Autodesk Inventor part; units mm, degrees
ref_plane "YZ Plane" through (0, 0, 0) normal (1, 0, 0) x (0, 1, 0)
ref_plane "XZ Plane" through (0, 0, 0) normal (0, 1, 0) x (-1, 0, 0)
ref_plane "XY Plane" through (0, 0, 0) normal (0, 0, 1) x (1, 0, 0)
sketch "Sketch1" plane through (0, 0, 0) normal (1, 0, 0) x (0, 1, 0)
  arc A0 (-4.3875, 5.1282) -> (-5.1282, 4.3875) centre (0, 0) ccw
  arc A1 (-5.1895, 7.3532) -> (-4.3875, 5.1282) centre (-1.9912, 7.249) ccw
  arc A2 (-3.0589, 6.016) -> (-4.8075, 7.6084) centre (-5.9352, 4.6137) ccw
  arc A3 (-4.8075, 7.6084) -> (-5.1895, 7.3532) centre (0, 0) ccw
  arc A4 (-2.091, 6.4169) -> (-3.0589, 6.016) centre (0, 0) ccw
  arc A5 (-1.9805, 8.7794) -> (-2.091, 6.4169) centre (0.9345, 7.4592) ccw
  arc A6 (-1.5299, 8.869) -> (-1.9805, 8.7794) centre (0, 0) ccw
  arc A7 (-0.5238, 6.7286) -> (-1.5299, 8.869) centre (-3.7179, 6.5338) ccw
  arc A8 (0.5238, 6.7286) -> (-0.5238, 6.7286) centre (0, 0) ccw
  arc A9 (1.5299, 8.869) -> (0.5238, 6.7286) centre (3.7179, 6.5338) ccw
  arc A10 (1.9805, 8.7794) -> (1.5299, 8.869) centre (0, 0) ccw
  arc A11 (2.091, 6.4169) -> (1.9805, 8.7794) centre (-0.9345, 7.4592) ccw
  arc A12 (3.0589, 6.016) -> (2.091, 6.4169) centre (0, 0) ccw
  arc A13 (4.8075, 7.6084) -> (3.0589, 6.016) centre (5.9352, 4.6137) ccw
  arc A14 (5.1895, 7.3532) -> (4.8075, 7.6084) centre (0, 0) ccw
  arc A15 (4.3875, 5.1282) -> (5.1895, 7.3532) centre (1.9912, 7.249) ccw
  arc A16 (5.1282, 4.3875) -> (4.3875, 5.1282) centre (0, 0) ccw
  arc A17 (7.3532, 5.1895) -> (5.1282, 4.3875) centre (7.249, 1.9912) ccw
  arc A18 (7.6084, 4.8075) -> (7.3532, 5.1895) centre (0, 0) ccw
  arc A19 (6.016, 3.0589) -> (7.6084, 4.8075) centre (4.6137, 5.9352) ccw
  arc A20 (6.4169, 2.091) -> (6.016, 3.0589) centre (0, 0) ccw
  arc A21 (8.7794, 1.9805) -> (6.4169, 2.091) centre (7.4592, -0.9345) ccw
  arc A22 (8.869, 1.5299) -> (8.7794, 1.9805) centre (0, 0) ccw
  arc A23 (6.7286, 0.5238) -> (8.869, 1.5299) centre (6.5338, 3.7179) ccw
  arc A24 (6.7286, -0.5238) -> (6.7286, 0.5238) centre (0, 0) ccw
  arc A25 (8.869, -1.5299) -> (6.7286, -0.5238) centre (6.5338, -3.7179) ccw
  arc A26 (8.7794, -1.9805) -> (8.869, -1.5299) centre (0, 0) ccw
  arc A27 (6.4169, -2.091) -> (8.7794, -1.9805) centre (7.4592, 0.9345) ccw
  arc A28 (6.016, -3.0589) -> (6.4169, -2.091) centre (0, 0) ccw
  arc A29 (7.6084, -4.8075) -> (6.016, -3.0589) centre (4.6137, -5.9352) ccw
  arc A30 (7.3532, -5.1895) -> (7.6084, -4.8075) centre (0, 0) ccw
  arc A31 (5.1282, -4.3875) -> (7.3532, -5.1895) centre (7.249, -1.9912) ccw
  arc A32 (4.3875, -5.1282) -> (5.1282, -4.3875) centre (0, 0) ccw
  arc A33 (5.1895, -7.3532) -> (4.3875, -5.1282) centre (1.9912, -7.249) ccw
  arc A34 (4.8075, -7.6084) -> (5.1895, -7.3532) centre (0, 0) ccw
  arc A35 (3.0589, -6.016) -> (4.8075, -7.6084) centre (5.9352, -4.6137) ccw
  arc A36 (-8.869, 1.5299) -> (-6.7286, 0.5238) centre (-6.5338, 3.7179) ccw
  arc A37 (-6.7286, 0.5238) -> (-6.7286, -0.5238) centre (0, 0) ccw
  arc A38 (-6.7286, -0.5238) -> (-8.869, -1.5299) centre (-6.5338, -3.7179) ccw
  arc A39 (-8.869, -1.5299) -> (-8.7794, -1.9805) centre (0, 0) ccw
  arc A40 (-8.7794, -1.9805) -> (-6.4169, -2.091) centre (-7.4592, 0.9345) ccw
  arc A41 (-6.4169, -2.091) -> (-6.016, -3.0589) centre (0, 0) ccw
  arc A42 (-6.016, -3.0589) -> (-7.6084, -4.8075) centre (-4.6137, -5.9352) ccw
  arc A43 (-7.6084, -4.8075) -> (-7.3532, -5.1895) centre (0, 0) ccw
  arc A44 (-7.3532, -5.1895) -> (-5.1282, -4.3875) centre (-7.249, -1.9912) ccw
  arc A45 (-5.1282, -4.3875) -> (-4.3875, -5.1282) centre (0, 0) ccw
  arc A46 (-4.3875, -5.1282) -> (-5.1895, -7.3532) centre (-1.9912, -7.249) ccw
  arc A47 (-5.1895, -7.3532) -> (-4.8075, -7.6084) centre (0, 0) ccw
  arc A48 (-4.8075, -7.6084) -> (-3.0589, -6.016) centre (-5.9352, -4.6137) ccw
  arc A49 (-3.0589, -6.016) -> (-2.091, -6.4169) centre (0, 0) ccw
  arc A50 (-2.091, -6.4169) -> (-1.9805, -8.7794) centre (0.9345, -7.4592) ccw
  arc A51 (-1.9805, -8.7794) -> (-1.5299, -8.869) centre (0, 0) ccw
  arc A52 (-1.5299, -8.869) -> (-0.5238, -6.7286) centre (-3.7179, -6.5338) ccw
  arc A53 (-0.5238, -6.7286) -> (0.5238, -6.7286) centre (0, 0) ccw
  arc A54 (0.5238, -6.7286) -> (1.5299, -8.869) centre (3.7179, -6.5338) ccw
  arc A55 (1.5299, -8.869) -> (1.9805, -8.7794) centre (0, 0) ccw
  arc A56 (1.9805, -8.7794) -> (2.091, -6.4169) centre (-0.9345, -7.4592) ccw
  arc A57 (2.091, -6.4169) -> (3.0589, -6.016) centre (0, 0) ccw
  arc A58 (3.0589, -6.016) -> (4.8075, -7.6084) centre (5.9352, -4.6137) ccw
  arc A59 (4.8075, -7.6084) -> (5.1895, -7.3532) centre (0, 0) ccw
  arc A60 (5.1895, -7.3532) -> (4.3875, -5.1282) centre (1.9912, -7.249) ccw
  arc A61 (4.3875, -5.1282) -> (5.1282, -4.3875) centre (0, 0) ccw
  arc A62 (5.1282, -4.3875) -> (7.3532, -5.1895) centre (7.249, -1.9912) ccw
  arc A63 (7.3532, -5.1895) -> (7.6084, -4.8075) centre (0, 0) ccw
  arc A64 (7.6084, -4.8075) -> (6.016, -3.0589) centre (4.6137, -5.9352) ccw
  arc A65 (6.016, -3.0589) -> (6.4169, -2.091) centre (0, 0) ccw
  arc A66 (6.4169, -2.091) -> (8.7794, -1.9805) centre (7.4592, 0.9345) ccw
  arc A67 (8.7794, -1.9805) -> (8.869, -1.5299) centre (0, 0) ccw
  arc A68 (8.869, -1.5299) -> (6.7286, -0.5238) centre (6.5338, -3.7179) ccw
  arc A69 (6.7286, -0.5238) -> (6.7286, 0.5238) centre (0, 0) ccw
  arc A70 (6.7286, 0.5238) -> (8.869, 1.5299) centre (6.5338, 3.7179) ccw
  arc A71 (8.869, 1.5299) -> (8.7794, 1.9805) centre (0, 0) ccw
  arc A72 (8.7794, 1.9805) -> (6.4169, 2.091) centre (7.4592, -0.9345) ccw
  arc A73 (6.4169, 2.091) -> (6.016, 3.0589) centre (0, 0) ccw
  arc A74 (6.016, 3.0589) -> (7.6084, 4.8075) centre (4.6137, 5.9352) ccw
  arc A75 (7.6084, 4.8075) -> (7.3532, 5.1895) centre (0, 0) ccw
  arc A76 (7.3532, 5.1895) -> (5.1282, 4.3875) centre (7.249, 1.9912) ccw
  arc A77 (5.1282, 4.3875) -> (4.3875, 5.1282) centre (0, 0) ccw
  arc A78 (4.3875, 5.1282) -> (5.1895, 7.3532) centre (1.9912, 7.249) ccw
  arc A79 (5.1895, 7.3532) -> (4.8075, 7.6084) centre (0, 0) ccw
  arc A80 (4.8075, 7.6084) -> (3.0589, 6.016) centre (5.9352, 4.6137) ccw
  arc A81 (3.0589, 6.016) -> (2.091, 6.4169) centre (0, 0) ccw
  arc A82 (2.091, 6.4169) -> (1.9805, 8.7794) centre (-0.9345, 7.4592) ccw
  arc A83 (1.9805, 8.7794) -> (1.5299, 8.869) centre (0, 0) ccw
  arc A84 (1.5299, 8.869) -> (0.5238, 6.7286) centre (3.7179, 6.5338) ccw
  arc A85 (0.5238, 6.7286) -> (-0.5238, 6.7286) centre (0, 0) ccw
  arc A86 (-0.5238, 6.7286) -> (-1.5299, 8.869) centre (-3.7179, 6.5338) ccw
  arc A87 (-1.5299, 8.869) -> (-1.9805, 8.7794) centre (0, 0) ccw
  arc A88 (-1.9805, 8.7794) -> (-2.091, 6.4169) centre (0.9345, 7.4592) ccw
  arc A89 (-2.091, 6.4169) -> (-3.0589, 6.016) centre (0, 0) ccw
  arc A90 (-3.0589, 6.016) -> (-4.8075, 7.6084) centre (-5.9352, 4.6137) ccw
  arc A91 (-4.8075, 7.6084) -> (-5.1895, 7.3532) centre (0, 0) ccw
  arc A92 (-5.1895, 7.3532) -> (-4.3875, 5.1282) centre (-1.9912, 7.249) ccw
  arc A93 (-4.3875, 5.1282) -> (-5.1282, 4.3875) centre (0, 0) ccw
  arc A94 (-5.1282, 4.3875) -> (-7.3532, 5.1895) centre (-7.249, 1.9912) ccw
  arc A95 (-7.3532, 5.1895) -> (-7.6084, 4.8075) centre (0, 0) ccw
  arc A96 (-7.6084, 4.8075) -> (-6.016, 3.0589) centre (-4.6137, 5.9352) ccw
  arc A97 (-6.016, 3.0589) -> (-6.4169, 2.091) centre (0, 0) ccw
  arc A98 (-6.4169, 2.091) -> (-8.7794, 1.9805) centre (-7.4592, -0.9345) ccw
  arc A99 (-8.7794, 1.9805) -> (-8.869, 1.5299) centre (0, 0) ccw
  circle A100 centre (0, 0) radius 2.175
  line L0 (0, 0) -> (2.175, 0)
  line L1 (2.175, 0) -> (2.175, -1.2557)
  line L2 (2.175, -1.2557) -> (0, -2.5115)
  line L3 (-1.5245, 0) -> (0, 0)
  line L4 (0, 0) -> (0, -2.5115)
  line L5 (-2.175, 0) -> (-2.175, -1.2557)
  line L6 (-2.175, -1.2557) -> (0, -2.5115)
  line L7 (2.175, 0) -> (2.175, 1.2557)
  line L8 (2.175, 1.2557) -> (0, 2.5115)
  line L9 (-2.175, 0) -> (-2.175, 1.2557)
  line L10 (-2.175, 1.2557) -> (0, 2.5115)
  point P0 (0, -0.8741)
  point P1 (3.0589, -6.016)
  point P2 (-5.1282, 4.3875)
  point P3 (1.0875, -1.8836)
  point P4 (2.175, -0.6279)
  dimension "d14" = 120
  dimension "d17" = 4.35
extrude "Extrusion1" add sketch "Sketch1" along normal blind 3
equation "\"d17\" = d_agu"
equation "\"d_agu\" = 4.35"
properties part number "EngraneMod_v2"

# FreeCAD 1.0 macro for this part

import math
import FreeCAD as App
import Part
import Sketcher

V = App.Vector
Q = App.Units.Quantity


def add_polygon(sketch, points):
    """Adds a closed chain of lines whose ends are joined by coincident constraints."""
    first, n = sketch.GeometryCount, len(points)
    for a, b in zip(points, points[1:] + points[:1]):
        sketch.addGeometry(Part.LineSegment(App.Vector(*a, 0), App.Vector(*b, 0)), False)
    for i in range(n):
        sketch.addConstraint(Sketcher.Constraint("Coincident", first + i, 2, first + (i + 1) % n, 1))

doc = App.newDocument("Part")
body = doc.addObject("PartDesign::Body", "Body")

sketch1 = doc.addObject("Sketcher::SketchObject", "Sketch")
body.addObject(sketch1)
sketch1.AttachmentSupport = (doc.YZ_Plane, [""])
sketch1.MapMode = "FlatFace"
sketch1.addGeometry(Part.ArcOfCircle(Part.Circle(V(-1.9912, 7.249, 0), V(0, 0, 1), 3.199997), math.radians(178.133975), math.radians(221.509827)), False)
sketch1.addGeometry(Part.ArcOfCircle(Part.Circle(V(0, 0, 0), V(0, 0, 1), 6.74897), math.radians(130.549084), math.radians(139.450916)), False)
sketch1.addGeometry(Part.ArcOfCircle(Part.Circle(V(-7.249, 1.9912, 0), V(0, 0, 1), 3.200007), math.radians(48.490173), math.radians(91.866025)), False)
sketch1.addGeometry(Part.ArcOfCircle(Part.Circle(V(-0.04567, 0.031366, 0), V(0, 0, 1), 8.944627), math.radians(144.783048), math.radians(147.726127)), False)
sketch1.addGeometry(Part.ArcOfCircle(Part.Circle(V(-4.6137, 5.9352, 0), V(0, 0, 1), 3.19999), math.radians(-159.365369), math.radians(-115.990903)), False)
sketch1.addGeometry(Part.ArcOfCircle(Part.Circle(V(-0.002662, 0.001226, 0), V(0, 0, 1), 6.746081), math.radians(153.047483), math.radians(161.954266)), False)
sketch1.addGeometry(Part.ArcOfCircle(Part.Circle(V(-7.4592, -0.9345, 0), V(0, 0, 1), 3.200006), math.radians(70.990912), math.radians(114.365715)), False)
sketch1.addGeometry(Part.ArcOfCircle(Part.Circle(V(-0.040652, 0.008627, 0), V(0, 0, 1), 8.95846), math.radians(167.284331), math.radians(170.222986)), False)
sketch1.addGeometry(Part.ArcOfCircle(Part.Circle(V(-6.5338, 3.7179, 0), V(0, 0, 1), 3.200079), math.radians(-136.863938), math.radians(-93.490001)), False)
sketch1.addGeometry(Part.ArcOfCircle(Part.Circle(V(0, 0, 0), V(0, 0, 1), 6.748957), math.radians(175.548684), math.radians(184.451316)), False)
sketch1.addGeometry(Part.ArcOfCircle(Part.Circle(V(-6.5338, -3.7179, 0), V(0, 0, 1), 3.200035), math.radians(93.490001), math.radians(136.863938)), False)
sketch1.addGeometry(Part.ArcOfCircle(Part.Circle(V(0.04124, 0.007657, 0), V(0, 0, 1), 9.041927), math.radians(-170.20942), math.radians(-167.297898)), False)
sketch1.addGeometry(Part.ArcOfCircle(Part.Circle(V(-7.4592, 0.9345, 0), V(0, 0, 1), 3.200024), math.radians(-114.365715), math.radians(-70.990912)), False)
sketch1.addGeometry(Part.ArcOfCircle(Part.Circle(V(0.002752, 0.001016, 0), V(0, 0, 1), 6.751923), math.radians(-161.950405), math.radians(-153.051344)), False)
sketch1.addGeometry(Part.ArcOfCircle(Part.Circle(V(-4.6137, -5.9352, 0), V(0, 0, 1), 3.199929), math.radians(115.990903), math.radians(159.365369)), False)
sketch1.addGeometry(Part.ArcOfCircle(Part.Circle(V(0.047034, 0.030566, 0), V(0, 0, 1), 9.056078), math.radians(-147.708013), math.radians(-144.801162)), False)
sketch1.addGeometry(Part.ArcOfCircle(Part.Circle(V(-7.249, -1.9912, 0), V(0, 0, 1), 3.199997), math.radians(-91.866025), math.radians(-48.490173)), False)
sketch1.addGeometry(Part.ArcOfCircle(Part.Circle(V(0, 0, 0), V(0, 0, 1), 6.74897), math.radians(-139.450916), math.radians(-130.549084)), False)
sketch1.addGeometry(Part.ArcOfCircle(Part.Circle(V(-1.9912, -7.249, 0), V(0, 0, 1), 3.200007), math.radians(138.490173), math.radians(181.866025)), False)
sketch1.addGeometry(Part.ArcOfCircle(Part.Circle(V(-0.031366, -0.04567, 0), V(0, 0, 1), 8.944627), math.radians(-125.216952), math.radians(-122.273873)), False)
sketch1.addGeometry(Part.ArcOfCircle(Part.Circle(V(-5.9352, -4.6137, 0), V(0, 0, 1), 3.19999), math.radians(-69.365369), math.radians(-25.990903)), False)
sketch1.addGeometry(Part.ArcOfCircle(Part.Circle(V(-0.001226, -0.002662, 0), V(0, 0, 1), 6.746081), math.radians(-116.952517), math.radians(-108.045734)), False)
sketch1.addGeometry(Part.ArcOfCircle(Part.Circle(V(0.9345, -7.4592, 0), V(0, 0, 1), 3.200006), math.radians(160.990912), math.radians(204.365715)), False)
sketch1.addGeometry(Part.ArcOfCircle(Part.Circle(V(-0.008627, -0.040652, 0), V(0, 0, 1), 8.95846), math.radians(-102.715669), math.radians(-99.777014)), False)
sketch1.addGeometry(Part.ArcOfCircle(Part.Circle(V(-3.7179, -6.5338, 0), V(0, 0, 1), 3.200079), math.radians(-46.863938), math.radians(-3.490001)), False)
sketch1.addGeometry(Part.ArcOfCircle(Part.Circle(V(0, 0, 0), V(0, 0, 1), 6.748957), math.radians(-94.451316), math.radians(-85.548684)), False)
sketch1.addGeometry(Part.ArcOfCircle(Part.Circle(V(3.7179, -6.5338, 0), V(0, 0, 1), 3.200035), math.radians(-176.509999), math.radians(-133.136062)), False)
sketch1.addGeometry(Part.ArcOfCircle(Part.Circle(V(-0.007657, 0.04124, 0), V(0, 0, 1), 9.041927), math.radians(-80.20942), math.radians(-77.297898)), False)
sketch1.addGeometry(Part.ArcOfCircle(Part.Circle(V(-0.9345, -7.4592, 0), V(0, 0, 1), 3.200024), math.radians(-24.365715), math.radians(19.009088)), False)
sketch1.addGeometry(Part.ArcOfCircle(Part.Circle(V(-0.001016, 0.002752, 0), V(0, 0, 1), 6.751923), math.radians(-71.950405), math.radians(-63.051344)), False)
sketch1.addGeometry(Part.ArcOfCircle(Part.Circle(V(5.9352, -4.6137, 0), V(0, 0, 1), 3.199929), math.radians(-154.009097), math.radians(-110.634631)), False)
sketch1.addGeometry(Part.ArcOfCircle(Part.Circle(V(-0.030566, 0.047034, 0), V(0, 0, 1), 9.056078), math.radians(-57.708013), math.radians(-54.801162)), False)
sketch1.addGeometry(Part.ArcOfCircle(Part.Circle(V(1.9912, -7.249, 0), V(0, 0, 1), 3.199997), math.radians(-1.866025), math.radians(41.509827)), False)
sketch1.addGeometry(Part.ArcOfCircle(Part.Circle(V(0, 0, 0), V(0, 0, 1), 6.74897), math.radians(-49.450916), math.radians(-40.549084)), False)
sketch1.addGeometry(Part.ArcOfCircle(Part.Circle(V(7.249, -1.9912, 0), V(0, 0, 1), 3.200007), math.radians(-131.509827), math.radians(-88.133975)), False)
sketch1.addGeometry(Part.ArcOfCircle(Part.Circle(V(0.04567, -0.031366, 0), V(0, 0, 1), 8.944627), math.radians(-35.216952), math.radians(-32.273873)), False)
sketch1.addGeometry(Part.ArcOfCircle(Part.Circle(V(4.6137, -5.9352, 0), V(0, 0, 1), 3.19999), math.radians(20.634631), math.radians(64.009097)), False)
sketch1.addGeometry(Part.ArcOfCircle(Part.Circle(V(0.002662, -0.001226, 0), V(0, 0, 1), 6.746081), math.radians(-26.952517), math.radians(-18.045734)), False)
sketch1.addGeometry(Part.ArcOfCircle(Part.Circle(V(7.4592, 0.9345, 0), V(0, 0, 1), 3.200006), math.radians(-109.009088), math.radians(-65.634285)), False)
sketch1.addGeometry(Part.ArcOfCircle(Part.Circle(V(0.040652, -0.008627, 0), V(0, 0, 1), 8.95846), math.radians(-12.715669), math.radians(-9.777014)), False)
sketch1.addGeometry(Part.ArcOfCircle(Part.Circle(V(6.5338, -3.7179, 0), V(0, 0, 1), 3.200079), math.radians(43.136062), math.radians(86.509999)), False)
sketch1.addGeometry(Part.ArcOfCircle(Part.Circle(V(0, 0, 0), V(0, 0, 1), 6.748957), math.radians(-4.451316), math.radians(4.451316)), False)
sketch1.addGeometry(Part.ArcOfCircle(Part.Circle(V(6.5338, 3.7179, 0), V(0, 0, 1), 3.200035), math.radians(-86.509999), math.radians(-43.136062)), False)
sketch1.addGeometry(Part.ArcOfCircle(Part.Circle(V(-0.04124, -0.007657, 0), V(0, 0, 1), 9.041927), math.radians(9.79058), math.radians(12.702102)), False)
sketch1.addGeometry(Part.ArcOfCircle(Part.Circle(V(7.4592, -0.9345, 0), V(0, 0, 1), 3.200024), math.radians(65.634285), math.radians(109.009088)), False)
sketch1.addGeometry(Part.ArcOfCircle(Part.Circle(V(-0.002752, -0.001016, 0), V(0, 0, 1), 6.751923), math.radians(18.049595), math.radians(26.948656)), False)
sketch1.addGeometry(Part.ArcOfCircle(Part.Circle(V(4.6137, 5.9352, 0), V(0, 0, 1), 3.199929), math.radians(-64.009097), math.radians(-20.634631)), False)
sketch1.addGeometry(Part.ArcOfCircle(Part.Circle(V(-0.047034, -0.030566, 0), V(0, 0, 1), 9.056078), math.radians(32.291987), math.radians(35.198838)), False)
sketch1.addGeometry(Part.ArcOfCircle(Part.Circle(V(7.249, 1.9912, 0), V(0, 0, 1), 3.199997), math.radians(88.133975), math.radians(131.509827)), False)
sketch1.addGeometry(Part.ArcOfCircle(Part.Circle(V(0, 0, 0), V(0, 0, 1), 6.74897), math.radians(40.549084), math.radians(49.450916)), False)
sketch1.addGeometry(Part.ArcOfCircle(Part.Circle(V(1.9912, 7.249, 0), V(0, 0, 1), 3.200007), math.radians(-41.509827), math.radians(1.866025)), False)
sketch1.addGeometry(Part.ArcOfCircle(Part.Circle(V(0.031366, 0.04567, 0), V(0, 0, 1), 8.944627), math.radians(54.783048), math.radians(57.726127)), False)
sketch1.addGeometry(Part.ArcOfCircle(Part.Circle(V(5.9352, 4.6137, 0), V(0, 0, 1), 3.19999), math.radians(110.634631), math.radians(154.009097)), False)
sketch1.addGeometry(Part.ArcOfCircle(Part.Circle(V(0.001226, 0.002662, 0), V(0, 0, 1), 6.746081), math.radians(63.047483), math.radians(71.954266)), False)
sketch1.addGeometry(Part.ArcOfCircle(Part.Circle(V(-0.9345, 7.4592, 0), V(0, 0, 1), 3.200006), math.radians(-19.009088), math.radians(24.365715)), False)
sketch1.addGeometry(Part.ArcOfCircle(Part.Circle(V(0.008627, 0.040652, 0), V(0, 0, 1), 8.95846), math.radians(77.284331), math.radians(80.222986)), False)
sketch1.addGeometry(Part.ArcOfCircle(Part.Circle(V(3.7179, 6.5338, 0), V(0, 0, 1), 3.200079), math.radians(133.136062), math.radians(176.509999)), False)
sketch1.addGeometry(Part.ArcOfCircle(Part.Circle(V(0, 0, 0), V(0, 0, 1), 6.748957), math.radians(85.548684), math.radians(94.451316)), False)
sketch1.addGeometry(Part.ArcOfCircle(Part.Circle(V(-3.7179, 6.5338, 0), V(0, 0, 1), 3.200035), math.radians(3.490001), math.radians(46.863938)), False)
sketch1.addGeometry(Part.ArcOfCircle(Part.Circle(V(0.007657, -0.04124, 0), V(0, 0, 1), 9.041927), math.radians(99.79058), math.radians(102.702102)), False)
sketch1.addGeometry(Part.ArcOfCircle(Part.Circle(V(0.9345, 7.4592, 0), V(0, 0, 1), 3.200024), math.radians(155.634285), math.radians(199.009088)), False)
sketch1.addGeometry(Part.ArcOfCircle(Part.Circle(V(0.001016, -0.002752, 0), V(0, 0, 1), 6.751923), math.radians(108.049595), math.radians(116.948656)), False)
sketch1.addGeometry(Part.ArcOfCircle(Part.Circle(V(-5.9352, 4.6137, 0), V(0, 0, 1), 3.199929), math.radians(25.990903), math.radians(69.365369)), False)
sketch1.addGeometry(Part.ArcOfCircle(Part.Circle(V(0.030566, -0.047034, 0), V(0, 0, 1), 9.056078), math.radians(122.291987), math.radians(125.198838)), False)
add_polygon(sketch1, [(2.175, 1.2557), (2.175, -1.2557), (0, -2.5115), (-2.175, -1.2557), (-2.175, 1.2557), (0, 2.5115)])
sketch1.addConstraint([
    Sketcher.Constraint("Coincident", 0, 2, 1, 1),
    Sketcher.Constraint("Coincident", 1, 2, 2, 1),
    Sketcher.Constraint("Coincident", 2, 2, 3, 1),
    Sketcher.Constraint("Coincident", 3, 2, 4, 1),
    Sketcher.Constraint("Coincident", 4, 2, 5, 1),
    Sketcher.Constraint("Coincident", 5, 2, 6, 1),
    Sketcher.Constraint("Coincident", 6, 2, 7, 1),
    Sketcher.Constraint("Coincident", 7, 2, 8, 1),
    Sketcher.Constraint("Coincident", 8, 2, 9, 1),
    Sketcher.Constraint("Coincident", 9, 2, 10, 1),
    Sketcher.Constraint("Coincident", 10, 2, 11, 1),
    Sketcher.Constraint("Coincident", 11, 2, 12, 1),
    Sketcher.Constraint("Coincident", 12, 2, 13, 1),
    Sketcher.Constraint("Coincident", 13, 2, 14, 1),
    Sketcher.Constraint("Coincident", 14, 2, 15, 1),
    Sketcher.Constraint("Coincident", 15, 2, 16, 1),
    Sketcher.Constraint("Coincident", 16, 2, 17, 1),
    Sketcher.Constraint("Coincident", 17, 2, 18, 1),
    Sketcher.Constraint("Coincident", 18, 2, 19, 1),
    Sketcher.Constraint("Coincident", 19, 2, 20, 1),
    Sketcher.Constraint("Coincident", 20, 2, 21, 1),
    Sketcher.Constraint("Coincident", 21, 2, 22, 1),
    Sketcher.Constraint("Coincident", 22, 2, 23, 1),
    Sketcher.Constraint("Coincident", 23, 2, 24, 1),
    Sketcher.Constraint("Coincident", 24, 2, 25, 1),
    Sketcher.Constraint("Coincident", 25, 2, 26, 1),
    Sketcher.Constraint("Coincident", 26, 2, 27, 1),
    Sketcher.Constraint("Coincident", 27, 2, 28, 1),
    Sketcher.Constraint("Coincident", 28, 2, 29, 1),
    Sketcher.Constraint("Coincident", 29, 2, 30, 1),
    Sketcher.Constraint("Coincident", 30, 2, 31, 1),
    Sketcher.Constraint("Coincident", 31, 2, 32, 1),
    Sketcher.Constraint("Coincident", 32, 2, 33, 1),
    Sketcher.Constraint("Coincident", 33, 2, 34, 1),
    Sketcher.Constraint("Coincident", 34, 2, 35, 1),
    Sketcher.Constraint("Coincident", 35, 2, 36, 1),
    Sketcher.Constraint("Coincident", 36, 2, 37, 1),
    Sketcher.Constraint("Coincident", 37, 2, 38, 1),
    Sketcher.Constraint("Coincident", 38, 2, 39, 1),
    Sketcher.Constraint("Coincident", 39, 2, 40, 1),
    Sketcher.Constraint("Coincident", 40, 2, 41, 1),
    Sketcher.Constraint("Coincident", 41, 2, 42, 1),
    Sketcher.Constraint("Coincident", 42, 2, 43, 1),
    Sketcher.Constraint("Coincident", 43, 2, 44, 1),
    Sketcher.Constraint("Coincident", 44, 2, 45, 1),
    Sketcher.Constraint("Coincident", 45, 2, 46, 1),
    Sketcher.Constraint("Coincident", 46, 2, 47, 1),
    Sketcher.Constraint("Coincident", 47, 2, 48, 1),
    Sketcher.Constraint("Coincident", 48, 2, 49, 1),
    Sketcher.Constraint("Coincident", 49, 2, 50, 1),
    Sketcher.Constraint("Coincident", 50, 2, 51, 1),
    Sketcher.Constraint("Coincident", 51, 2, 52, 1),
    Sketcher.Constraint("Coincident", 52, 2, 53, 1),
    Sketcher.Constraint("Coincident", 53, 2, 54, 1),
    Sketcher.Constraint("Coincident", 54, 2, 55, 1),
    Sketcher.Constraint("Coincident", 55, 2, 56, 1),
    Sketcher.Constraint("Coincident", 56, 2, 57, 1),
    Sketcher.Constraint("Coincident", 57, 2, 58, 1),
    Sketcher.Constraint("Coincident", 58, 2, 59, 1),
    Sketcher.Constraint("Coincident", 59, 2, 60, 1),
    Sketcher.Constraint("Coincident", 60, 2, 61, 1),
    Sketcher.Constraint("Coincident", 61, 2, 62, 1),
    Sketcher.Constraint("Coincident", 62, 2, 63, 1),
    Sketcher.Constraint("Coincident", 63, 2, 0, 1),
    Sketcher.Constraint("Vertical", 64),
    Sketcher.Constraint("Vertical", 67),
    Sketcher.Constraint("Coincident", 1, 3, -1, 1),
    Sketcher.Constraint("Coincident", 9, 3, -1, 1),
    Sketcher.Constraint("Coincident", 17, 3, -1, 1),
    Sketcher.Constraint("Coincident", 25, 3, -1, 1),
    Sketcher.Constraint("Coincident", 33, 3, -1, 1),
    Sketcher.Constraint("Coincident", 41, 3, -1, 1),
    Sketcher.Constraint("Coincident", 49, 3, -1, 1),
    Sketcher.Constraint("Coincident", 57, 3, -1, 1),
    Sketcher.Constraint("PointOnObject", 65, 2, -2),
    Sketcher.Constraint("PointOnObject", 68, 2, -2),
    Sketcher.Constraint("Radius", 0, Q("3.2 mm")),
    Sketcher.Constraint("Radius", 2, Q("3.2 mm")),
    Sketcher.Constraint("Radius", 4, Q("3.2 mm")),
    Sketcher.Constraint("Radius", 6, Q("3.2 mm")),
    Sketcher.Constraint("Radius", 8, Q("3.2 mm")),
    Sketcher.Constraint("Radius", 10, Q("3.2 mm")),
    Sketcher.Constraint("Radius", 12, Q("3.2 mm")),
    Sketcher.Constraint("Radius", 14, Q("3.2 mm")),
    Sketcher.Constraint("Radius", 16, Q("3.2 mm")),
    Sketcher.Constraint("Radius", 18, Q("3.2 mm")),
    Sketcher.Constraint("Radius", 20, Q("3.2 mm")),
    Sketcher.Constraint("Radius", 22, Q("3.2 mm")),
    Sketcher.Constraint("Radius", 24, Q("3.2 mm")),
    Sketcher.Constraint("Radius", 26, Q("3.2 mm")),
    Sketcher.Constraint("Radius", 28, Q("3.2 mm")),
    Sketcher.Constraint("Radius", 30, Q("3.2 mm")),
    Sketcher.Constraint("Radius", 32, Q("3.2 mm")),
    Sketcher.Constraint("Radius", 34, Q("3.2 mm")),
    Sketcher.Constraint("Radius", 36, Q("3.2 mm")),
    Sketcher.Constraint("Radius", 38, Q("3.2 mm")),
    Sketcher.Constraint("Radius", 40, Q("3.2 mm")),
    Sketcher.Constraint("Radius", 42, Q("3.2 mm")),
    Sketcher.Constraint("Radius", 44, Q("3.2 mm")),
    Sketcher.Constraint("Radius", 46, Q("3.2 mm")),
    Sketcher.Constraint("Radius", 48, Q("3.2 mm")),
    Sketcher.Constraint("Radius", 50, Q("3.2 mm")),
    Sketcher.Constraint("Radius", 52, Q("3.2 mm")),
    Sketcher.Constraint("Radius", 54, Q("3.2 mm")),
    Sketcher.Constraint("Radius", 56, Q("3.2 mm")),
    Sketcher.Constraint("Radius", 58, Q("3.2 mm")),
    Sketcher.Constraint("Radius", 60, Q("3.2 mm")),
    Sketcher.Constraint("Radius", 62, Q("3.2 mm")),
    Sketcher.Constraint("Radius", 1, Q("6.749 mm")),
    Sketcher.Constraint("Radius", 5, Q("6.746 mm")),
    Sketcher.Constraint("Radius", 9, Q("6.749 mm")),
    Sketcher.Constraint("Radius", 11, Q("9.042 mm")),
    Sketcher.Constraint("Radius", 13, Q("6.752 mm")),
    Sketcher.Constraint("Radius", 15, Q("9.056 mm")),
    Sketcher.Constraint("Radius", 17, Q("6.749 mm")),
    Sketcher.Constraint("Radius", 21, Q("6.746 mm")),
    Sketcher.Constraint("Radius", 25, Q("6.749 mm")),
    Sketcher.Constraint("Radius", 27, Q("9.042 mm")),
    Sketcher.Constraint("Radius", 29, Q("6.752 mm")),
    Sketcher.Constraint("Radius", 31, Q("9.056 mm")),
    Sketcher.Constraint("Radius", 33, Q("6.749 mm")),
    Sketcher.Constraint("Radius", 37, Q("6.746 mm")),
    Sketcher.Constraint("Radius", 41, Q("6.749 mm")),
    Sketcher.Constraint("Radius", 43, Q("9.042 mm")),
    Sketcher.Constraint("Radius", 45, Q("6.752 mm")),
    Sketcher.Constraint("Radius", 47, Q("9.056 mm")),
    Sketcher.Constraint("Radius", 49, Q("6.749 mm")),
    Sketcher.Constraint("Radius", 53, Q("6.746 mm")),
    Sketcher.Constraint("Radius", 57, Q("6.749 mm")),
    Sketcher.Constraint("Radius", 59, Q("9.042 mm")),
    Sketcher.Constraint("Radius", 61, Q("6.752 mm")),
    Sketcher.Constraint("Radius", 63, Q("9.056 mm")),
    Sketcher.Constraint("Radius", 3, Q("8.9446 mm")),
    Sketcher.Constraint("Radius", 7, Q("8.9585 mm")),
    Sketcher.Constraint("Radius", 19, Q("8.9446 mm")),
    Sketcher.Constraint("Radius", 23, Q("8.9585 mm")),
    Sketcher.Constraint("Radius", 35, Q("8.9446 mm")),
    Sketcher.Constraint("Radius", 39, Q("8.9585 mm")),
    Sketcher.Constraint("Radius", 51, Q("8.9446 mm")),
    Sketcher.Constraint("Radius", 55, Q("8.9585 mm")),
    Sketcher.Constraint("DistanceY", -1, 1, 7, 2, Q("1.53 mm")),
    Sketcher.Constraint("DistanceY", 10, 2, -1, 1, Q("1.53 mm")),
    Sketcher.Constraint("DistanceX", 23, 2, -1, 1, Q("1.53 mm")),
    Sketcher.Constraint("DistanceX", -1, 1, 26, 2, Q("1.53 mm")),
    Sketcher.Constraint("DistanceY", 39, 2, -1, 1, Q("1.53 mm")),
    Sketcher.Constraint("DistanceY", -1, 1, 42, 2, Q("1.53 mm")),
    Sketcher.Constraint("DistanceX", -1, 1, 55, 2, Q("1.53 mm")),
    Sketcher.Constraint("DistanceX", 58, 2, -1, 1, Q("1.53 mm")),
    Sketcher.Constraint("DistanceY", 64, 2, 64, 1, Q("2.5114 mm")),
    Sketcher.Constraint("DistanceY", 67, 1, 67, 2, Q("2.5114 mm")),
    Sketcher.Constraint("DistanceY", -1, 1, 0, 3, Q("7.249 mm")),
    Sketcher.Constraint("DistanceX", 2, 3, -1, 1, Q("7.249 mm")),
    Sketcher.Constraint("DistanceY", -1, 1, 8, 3, Q("3.718 mm")),
    Sketcher.Constraint("DistanceY", 10, 3, -1, 1, Q("3.718 mm")),
    Sketcher.Constraint("DistanceY", -1, 1, 13, 3, Q("0.001 mm")),
    Sketcher.Constraint("DistanceX", -1, 1, 15, 3, Q("0.047 mm")),
    Sketcher.Constraint("DistanceX", 16, 3, -1, 1, Q("7.249 mm")),
    Sketcher.Constraint("DistanceY", 18, 3, -1, 1, Q("7.249 mm")),
    Sketcher.Constraint("DistanceX", 24, 3, -1, 1, Q("3.718 mm")),
    Sketcher.Constraint("DistanceX", -1, 1, 26, 3, Q("3.718 mm")),
    Sketcher.Constraint("DistanceX", 29, 3, -1, 1, Q("0.001 mm")),
    Sketcher.Constraint("DistanceY", -1, 1, 31, 3, Q("0.047 mm")),
    Sketcher.Constraint("DistanceY", 32, 3, -1, 1, Q("7.249 mm")),
    Sketcher.Constraint("DistanceX", -1, 1, 34, 3, Q("7.249 mm")),
    Sketcher.Constraint("DistanceY", 40, 3, -1, 1, Q("3.718 mm")),
    Sketcher.Constraint("DistanceY", -1, 1, 42, 3, Q("3.718 mm")),
    Sketcher.Constraint("DistanceY", 45, 3, -1, 1, Q("0.001 mm")),
    Sketcher.Constraint("DistanceX", 47, 3, -1, 1, Q("0.047 mm")),
    Sketcher.Constraint("DistanceX", -1, 1, 48, 3, Q("7.249 mm")),
    Sketcher.Constraint("DistanceY", -1, 1, 50, 3, Q("7.249 mm")),
    Sketcher.Constraint("DistanceX", -1, 1, 56, 3, Q("3.718 mm")),
    Sketcher.Constraint("DistanceX", 58, 3, -1, 1, Q("3.718 mm")),
    Sketcher.Constraint("DistanceX", -1, 1, 61, 3, Q("0.001 mm")),
    Sketcher.Constraint("DistanceY", 63, 3, -1, 1, Q("0.047 mm")),
    Sketcher.Constraint("DistanceX", 4, 2, -1, 1, Q("6.016 mm")),
    Sketcher.Constraint("DistanceX", 5, 2, -1, 1, Q("6.417 mm")),
    Sketcher.Constraint("DistanceY", -1, 1, 5, 2, Q("2.091 mm")),
    Sketcher.Constraint("DistanceX", 7, 2, -1, 1, Q("8.869 mm")),
    Sketcher.Constraint("DistanceX", 10, 2, -1, 1, Q("8.869 mm")),
    Sketcher.Constraint("DistanceX", 12, 2, -1, 1, Q("6.417 mm")),
    Sketcher.Constraint("DistanceY", 12, 2, -1, 1, Q("2.091 mm")),
    Sketcher.Constraint("DistanceX", 13, 2, -1, 1, Q("6.016 mm")),
    Sketcher.Constraint("DistanceY", 20, 2, -1, 1, Q("6.016 mm")),
    Sketcher.Constraint("DistanceX", 21, 2, -1, 1, Q("2.091 mm")),
    Sketcher.Constraint("DistanceY", 21, 2, -1, 1, Q("6.417 mm")),
    Sketcher.Constraint("DistanceY", 23, 2, -1, 1, Q("8.869 mm")),
    Sketcher.Constraint("DistanceY", 26, 2, -1, 1, Q("8.869 mm")),
    Sketcher.Constraint("DistanceX", -1, 1, 28, 2, Q("2.091 mm")),
    Sketcher.Constraint("DistanceY", 28, 2, -1, 1, Q("6.417 mm")),
    Sketcher.Constraint("DistanceX", -1, 1, 29, 2, Q("3.059 mm")),
    Sketcher.Constraint("DistanceX", -1, 1, 36, 2, Q("6.016 mm")),
    Sketcher.Constraint("DistanceX", -1, 1, 37, 2, Q("6.417 mm")),
    Sketcher.Constraint("DistanceY", 37, 2, -1, 1, Q("2.091 mm")),
    Sketcher.Constraint("DistanceX", -1, 1, 39, 2, Q("8.869 mm")),
    Sketcher.Constraint("DistanceX", -1, 1, 42, 2, Q("8.869 mm")),
    Sketcher.Constraint("DistanceX", -1, 1, 44, 2, Q("6.417 mm")),
    Sketcher.Constraint("DistanceY", -1, 1, 44, 2, Q("2.091 mm")),
    Sketcher.Constraint("DistanceX", -1, 1, 45, 2, Q("6.016 mm")),
    Sketcher.Constraint("DistanceY", -1, 1, 52, 2, Q("6.016 mm")),
    Sketcher.Constraint("DistanceX", -1, 1, 53, 2, Q("2.091 mm")),
    Sketcher.Constraint("DistanceY", -1, 1, 53, 2, Q("6.417 mm")),
    Sketcher.Constraint("DistanceY", -1, 1, 55, 2, Q("8.869 mm")),
    Sketcher.Constraint("DistanceY", -1, 1, 58, 2, Q("8.869 mm")),
    Sketcher.Constraint("DistanceX", 60, 2, -1, 1, Q("2.091 mm")),
    Sketcher.Constraint("DistanceY", -1, 1, 60, 2, Q("6.417 mm")),
    Sketcher.Constraint("DistanceX", 61, 2, -1, 1, Q("3.059 mm")),
    Sketcher.Constraint("DistanceX", -1, 1, 64, 2, Q("2.175 mm")),
    Sketcher.Constraint("DistanceX", 66, 2, -1, 1, Q("2.175 mm")),
    Sketcher.Constraint("Distance", 65, Q("2.5115 mm")),
    Sketcher.Constraint("Distance", 66, Q("2.5115 mm")),
    Sketcher.Constraint("Distance", 68, Q("2.5115 mm")),
    Sketcher.Constraint("DistanceX", 0, 3, -1, 1, Q("1.9912 mm")),
    Sketcher.Constraint("DistanceY", -1, 1, 2, 3, Q("1.9912 mm")),
    Sketcher.Constraint("DistanceX", 3, 3, -1, 1, Q("0.0457 mm")),
    Sketcher.Constraint("DistanceY", -1, 1, 3, 3, Q("0.0314 mm")),
    Sketcher.Constraint("DistanceX", 4, 3, -1, 1, Q("4.6137 mm")),
    Sketcher.Constraint("DistanceY", -1, 1, 4, 3, Q("5.9352 mm")),
    Sketcher.Constraint("DistanceX", 6, 3, -1, 1, Q("7.4592 mm")),
    Sketcher.Constraint("DistanceX", 7, 3, -1, 1, Q("0.0407 mm")),
    Sketcher.Constraint("DistanceX", -1, 1, 11, 3, Q("0.0412 mm")),
    Sketcher.Constraint("DistanceX", 12, 3, -1, 1, Q("7.4592 mm")),
    Sketcher.Constraint("DistanceX", 14, 3, -1, 1, Q("4.6137 mm")),
    Sketcher.Constraint("DistanceY", -1, 1, 15, 3, Q("0.0306 mm")),
    Sketcher.Constraint("DistanceY", 16, 3, -1, 1, Q("1.9912 mm")),
    Sketcher.Constraint("DistanceX", 18, 3, -1, 1, Q("1.9912 mm")),
    Sketcher.Constraint("DistanceX", 19, 3, -1, 1, Q("0.0314 mm")),
    Sketcher.Constraint("DistanceY", 19, 3, -1, 1, Q("0.0457 mm")),
    Sketcher.Constraint("DistanceX", 20, 3, -1, 1, Q("5.9352 mm")),
    Sketcher.Constraint("DistanceY", 20, 3, -1, 1, Q("4.6137 mm")),
    Sketcher.Constraint("DistanceX", -1, 1, 22, 3, Q("0.9345 mm")),
    Sketcher.Constraint("DistanceX", 23, 3, -1, 1, Q("0.0086 mm")),
    Sketcher.Constraint("DistanceX", 27, 3, -1, 1, Q("0.0077 mm")),
    Sketcher.Constraint("DistanceX", 28, 3, -1, 1, Q("0.9345 mm")),
    Sketcher.Constraint("DistanceX", -1, 1, 30, 3, Q("5.9352 mm")),
    Sketcher.Constraint("DistanceX", 31, 3, -1, 1, Q("0.0306 mm")),
    Sketcher.Constraint("DistanceX", -1, 1, 32, 3, Q("1.9912 mm")),
    Sketcher.Constraint("DistanceY", 34, 3, -1, 1, Q("1.9912 mm")),
    Sketcher.Constraint("DistanceX", -1, 1, 35, 3, Q("0.0457 mm")),
    Sketcher.Constraint("DistanceY", 35, 3, -1, 1, Q("0.0314 mm")),
    Sketcher.Constraint("DistanceX", -1, 1, 36, 3, Q("4.6137 mm")),
    Sketcher.Constraint("DistanceY", 36, 3, -1, 1, Q("5.9352 mm")),
    Sketcher.Constraint("DistanceX", -1, 1, 38, 3, Q("7.4592 mm")),
    Sketcher.Constraint("DistanceX", -1, 1, 39, 3, Q("0.0407 mm")),
    Sketcher.Constraint("DistanceX", 43, 3, -1, 1, Q("0.0412 mm")),
    Sketcher.Constraint("DistanceX", -1, 1, 44, 3, Q("7.4592 mm")),
    Sketcher.Constraint("DistanceX", -1, 1, 46, 3, Q("4.6137 mm")),
    Sketcher.Constraint("DistanceY", 47, 3, -1, 1, Q("0.0306 mm")),
    Sketcher.Constraint("DistanceY", -1, 1, 48, 3, Q("1.9912 mm")),
    Sketcher.Constraint("DistanceX", -1, 1, 50, 3, Q("1.9912 mm")),
    Sketcher.Constraint("DistanceX", -1, 1, 51, 3, Q("0.0314 mm")),
    Sketcher.Constraint("DistanceY", -1, 1, 51, 3, Q("0.0457 mm")),
    Sketcher.Constraint("DistanceX", -1, 1, 52, 3, Q("5.9352 mm")),
    Sketcher.Constraint("DistanceY", -1, 1, 52, 3, Q("4.6137 mm")),
    Sketcher.Constraint("DistanceX", 54, 3, -1, 1, Q("0.9345 mm")),
    Sketcher.Constraint("DistanceX", -1, 1, 55, 3, Q("0.0086 mm")),
    Sketcher.Constraint("DistanceX", -1, 1, 59, 3, Q("0.0077 mm")),
    Sketcher.Constraint("DistanceX", -1, 1, 60, 3, Q("0.9345 mm")),
    Sketcher.Constraint("DistanceX", 62, 3, -1, 1, Q("5.9352 mm")),
    Sketcher.Constraint("DistanceX", -1, 1, 63, 3, Q("0.0306 mm")),
    Sketcher.Constraint("DistanceY", 64, 2, -1, 1, Q("1.2557 mm")),
])
pad1 = doc.addObject("PartDesign::Pad", "Pad")
body.addObject(pad1)
pad1.Profile = sketch1
pad1.Length = 3

doc.recompute()
